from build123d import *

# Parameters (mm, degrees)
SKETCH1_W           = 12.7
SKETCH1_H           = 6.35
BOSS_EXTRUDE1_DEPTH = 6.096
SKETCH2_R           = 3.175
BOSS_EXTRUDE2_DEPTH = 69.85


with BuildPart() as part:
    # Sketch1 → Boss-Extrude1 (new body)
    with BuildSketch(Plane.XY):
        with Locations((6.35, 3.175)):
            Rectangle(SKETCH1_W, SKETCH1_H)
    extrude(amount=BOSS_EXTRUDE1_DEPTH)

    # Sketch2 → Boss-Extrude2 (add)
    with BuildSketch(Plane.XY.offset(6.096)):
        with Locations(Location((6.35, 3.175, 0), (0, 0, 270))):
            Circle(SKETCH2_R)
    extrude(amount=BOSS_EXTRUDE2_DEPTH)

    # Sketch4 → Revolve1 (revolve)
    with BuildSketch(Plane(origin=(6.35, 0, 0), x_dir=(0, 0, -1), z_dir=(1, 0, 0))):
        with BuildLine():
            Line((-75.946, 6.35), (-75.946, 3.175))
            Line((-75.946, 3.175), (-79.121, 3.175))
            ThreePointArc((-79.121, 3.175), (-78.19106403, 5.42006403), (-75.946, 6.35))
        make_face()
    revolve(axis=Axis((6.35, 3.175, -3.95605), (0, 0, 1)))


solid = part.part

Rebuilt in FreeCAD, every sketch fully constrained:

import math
import FreeCAD as App
import Part
import Sketcher
from FreeCAD import Vector
Q = App.Units.Quantity

doc = App.newDocument("Part")
params = doc.addObject("Spreadsheet::Sheet", "Params")
for row, (alias, value) in enumerate([
    ("sketch1_width", "0.5 in"),
    ("sketch1_height", "0.25 in"),
    ("pad1_length", "0.24 in"),
    ("sketch2_diameter", "0.25 in"),
    ("pad2_length", "2.75 in"),
    ("sketch3_radius", "0.125 in"),
    ("revolution_angle", "360 deg"),
], start=1):
    params.set(f"A{row}", alias)
    params.set(f"B{row}", "=" + value)
    params.setAlias(f"B{row}", alias)

body = doc.addObject("PartDesign::Body", "Body")

# Sketch on XY plane
sketch1 = body.newObject("Sketcher::SketchObject", "Sketch")
sketch1.AttachmentSupport = (doc.getObject("XY_Plane"), [""])
sketch1.MapMode = "FlatFace"
sketch1.addGeometry(Part.LineSegment(Vector(0, 6, 0), Vector(0, 0, 0)), False)
sketch1.addGeometry(Part.LineSegment(Vector(0, 0, 0), Vector(13, 0, 0)), False)
sketch1.addGeometry(Part.LineSegment(Vector(13, 0, 0), Vector(13, 6, 0)), False)
sketch1.addGeometry(Part.LineSegment(Vector(13, 6, 0), Vector(0, 6, 0)), False)
sketch1.addConstraint(Sketcher.Constraint("Coincident", 0, 2, 1, 1))
sketch1.addConstraint(Sketcher.Constraint("Coincident", 1, 2, 2, 1))
sketch1.addConstraint(Sketcher.Constraint("Coincident", 2, 2, 3, 1))
sketch1.addConstraint(Sketcher.Constraint("Coincident", 3, 2, 0, 1))
sketch1.addConstraint(Sketcher.Constraint("Vertical", 0))
sketch1.addConstraint(Sketcher.Constraint("Horizontal", 1))
sketch1.addConstraint(Sketcher.Constraint("Vertical", 2))
sketch1.addConstraint(Sketcher.Constraint("Horizontal", 3))
sketch1.addConstraint(Sketcher.Constraint("Coincident", 0, 2, -1, 1))
sketch1.addConstraint(Sketcher.Constraint("DistanceX", 1, 1, 1, 2, Q("0.5 in")))
sketch1.addConstraint(Sketcher.Constraint("DistanceY", 0, 2, 0, 1, Q("0.25 in")))
sketch1.setExpression("Constraints[9]", "Params.sketch1_width")
sketch1.setExpression("Constraints[10]", "Params.sketch1_height")
pad1 = body.newObject("PartDesign::Pad", "Pad")
pad1.Profile = sketch1
pad1.setExpression("Length", "Params.pad1_length")

# Sketch on XY plane
sketch2 = body.newObject("Sketcher::SketchObject", "Sketch001")
sketch2.AttachmentSupport = (doc.getObject("XY_Plane"), [""])
sketch2.MapMode = "FlatFace"
sketch2.AttachmentOffset = App.Placement(Vector(0, 0, 0.24 * 25.4), App.Rotation())
sketch2.addGeometry(Part.Circle(Vector(6.3, 3.2, 0), Vector(0, 0, 1), 3.2), False)
sketch2.addConstraint(Sketcher.Constraint("Diameter", 0, Q("0.25 in")))
sketch2.addConstraint(Sketcher.Constraint("DistanceX", -1, 1, 0, 3, Q("0.25 in")))
sketch2.addConstraint(Sketcher.Constraint("DistanceY", -1, 1, 0, 3, Q("0.125 in")))
sketch2.setExpression("Constraints[0]", "Params.sketch2_diameter")
pad2 = body.newObject("PartDesign::Pad", "Pad001")
pad2.Profile = sketch2
pad2.setExpression("Length", "Params.pad2_length")

# Sketch on YZ plane
sketch3 = body.newObject("Sketcher::SketchObject", "Sketch002")
sketch3.AttachmentSupport = (doc.getObject("YZ_Plane"), [""])
sketch3.MapMode = "FlatFace"
sketch3.AttachmentOffset = App.Placement(Vector(0, 0, 0.25 * 25.4), App.Rotation())
sketch3.addGeometry(Part.LineSegment(Vector(3.2, 75.9, 0), Vector(6.3, 75.9, 0)), False)
sketch3.addGeometry(Part.ArcOfCircle(Part.Circle(Vector(3.2, 75.9, 0), Vector(0, 0, 1), 3.2), math.radians(0), math.radians(90)), False)
sketch3.addGeometry(Part.LineSegment(Vector(3.2, 79.1, 0), Vector(3.2, 75.9, 0)), False)
sketch3.addGeometry(Part.LineSegment(Vector(3.2, 75.9, 0), Vector(3.2, 79.1, 0)), True)  # axis
sketch3.addConstraint(Sketcher.Constraint("Coincident", 0, 2, 1, 1))
sketch3.addConstraint(Sketcher.Constraint("Coincident", 1, 2, 2, 1))
sketch3.addConstraint(Sketcher.Constraint("Coincident", 2, 2, 0, 1))
sketch3.addConstraint(Sketcher.Constraint("Horizontal", 0))
sketch3.addConstraint(Sketcher.Constraint("Vertical", 2))
sketch3.addConstraint(Sketcher.Constraint("Vertical", 3))
sketch3.addConstraint(Sketcher.Constraint("Coincident", 2, 2, 1, 3))
sketch3.addConstraint(Sketcher.Constraint("Coincident", 3, 1, 1, 3))
sketch3.addConstraint(Sketcher.Constraint("Equal", 2, 3))
sketch3.addConstraint(Sketcher.Constraint("Radius", 1, Q("0.125 in")))
sketch3.addConstraint(Sketcher.Constraint("DistanceY", -1, 1, 1, 3, Q("2.99 in")))
sketch3.addConstraint(Sketcher.Constraint("DistanceX", -1, 1, 0, 2, Q("0.25 in")))
sketch3.setExpression("Constraints[9]", "Params.sketch3_radius")
revolution = body.newObject("PartDesign::Revolution", "Revolution")
revolution.Profile = sketch3
revolution.ReferenceAxis = (sketch3, ["Axis0"])
revolution.setExpression("Angle", "Params.revolution_angle")

doc.recompute()
